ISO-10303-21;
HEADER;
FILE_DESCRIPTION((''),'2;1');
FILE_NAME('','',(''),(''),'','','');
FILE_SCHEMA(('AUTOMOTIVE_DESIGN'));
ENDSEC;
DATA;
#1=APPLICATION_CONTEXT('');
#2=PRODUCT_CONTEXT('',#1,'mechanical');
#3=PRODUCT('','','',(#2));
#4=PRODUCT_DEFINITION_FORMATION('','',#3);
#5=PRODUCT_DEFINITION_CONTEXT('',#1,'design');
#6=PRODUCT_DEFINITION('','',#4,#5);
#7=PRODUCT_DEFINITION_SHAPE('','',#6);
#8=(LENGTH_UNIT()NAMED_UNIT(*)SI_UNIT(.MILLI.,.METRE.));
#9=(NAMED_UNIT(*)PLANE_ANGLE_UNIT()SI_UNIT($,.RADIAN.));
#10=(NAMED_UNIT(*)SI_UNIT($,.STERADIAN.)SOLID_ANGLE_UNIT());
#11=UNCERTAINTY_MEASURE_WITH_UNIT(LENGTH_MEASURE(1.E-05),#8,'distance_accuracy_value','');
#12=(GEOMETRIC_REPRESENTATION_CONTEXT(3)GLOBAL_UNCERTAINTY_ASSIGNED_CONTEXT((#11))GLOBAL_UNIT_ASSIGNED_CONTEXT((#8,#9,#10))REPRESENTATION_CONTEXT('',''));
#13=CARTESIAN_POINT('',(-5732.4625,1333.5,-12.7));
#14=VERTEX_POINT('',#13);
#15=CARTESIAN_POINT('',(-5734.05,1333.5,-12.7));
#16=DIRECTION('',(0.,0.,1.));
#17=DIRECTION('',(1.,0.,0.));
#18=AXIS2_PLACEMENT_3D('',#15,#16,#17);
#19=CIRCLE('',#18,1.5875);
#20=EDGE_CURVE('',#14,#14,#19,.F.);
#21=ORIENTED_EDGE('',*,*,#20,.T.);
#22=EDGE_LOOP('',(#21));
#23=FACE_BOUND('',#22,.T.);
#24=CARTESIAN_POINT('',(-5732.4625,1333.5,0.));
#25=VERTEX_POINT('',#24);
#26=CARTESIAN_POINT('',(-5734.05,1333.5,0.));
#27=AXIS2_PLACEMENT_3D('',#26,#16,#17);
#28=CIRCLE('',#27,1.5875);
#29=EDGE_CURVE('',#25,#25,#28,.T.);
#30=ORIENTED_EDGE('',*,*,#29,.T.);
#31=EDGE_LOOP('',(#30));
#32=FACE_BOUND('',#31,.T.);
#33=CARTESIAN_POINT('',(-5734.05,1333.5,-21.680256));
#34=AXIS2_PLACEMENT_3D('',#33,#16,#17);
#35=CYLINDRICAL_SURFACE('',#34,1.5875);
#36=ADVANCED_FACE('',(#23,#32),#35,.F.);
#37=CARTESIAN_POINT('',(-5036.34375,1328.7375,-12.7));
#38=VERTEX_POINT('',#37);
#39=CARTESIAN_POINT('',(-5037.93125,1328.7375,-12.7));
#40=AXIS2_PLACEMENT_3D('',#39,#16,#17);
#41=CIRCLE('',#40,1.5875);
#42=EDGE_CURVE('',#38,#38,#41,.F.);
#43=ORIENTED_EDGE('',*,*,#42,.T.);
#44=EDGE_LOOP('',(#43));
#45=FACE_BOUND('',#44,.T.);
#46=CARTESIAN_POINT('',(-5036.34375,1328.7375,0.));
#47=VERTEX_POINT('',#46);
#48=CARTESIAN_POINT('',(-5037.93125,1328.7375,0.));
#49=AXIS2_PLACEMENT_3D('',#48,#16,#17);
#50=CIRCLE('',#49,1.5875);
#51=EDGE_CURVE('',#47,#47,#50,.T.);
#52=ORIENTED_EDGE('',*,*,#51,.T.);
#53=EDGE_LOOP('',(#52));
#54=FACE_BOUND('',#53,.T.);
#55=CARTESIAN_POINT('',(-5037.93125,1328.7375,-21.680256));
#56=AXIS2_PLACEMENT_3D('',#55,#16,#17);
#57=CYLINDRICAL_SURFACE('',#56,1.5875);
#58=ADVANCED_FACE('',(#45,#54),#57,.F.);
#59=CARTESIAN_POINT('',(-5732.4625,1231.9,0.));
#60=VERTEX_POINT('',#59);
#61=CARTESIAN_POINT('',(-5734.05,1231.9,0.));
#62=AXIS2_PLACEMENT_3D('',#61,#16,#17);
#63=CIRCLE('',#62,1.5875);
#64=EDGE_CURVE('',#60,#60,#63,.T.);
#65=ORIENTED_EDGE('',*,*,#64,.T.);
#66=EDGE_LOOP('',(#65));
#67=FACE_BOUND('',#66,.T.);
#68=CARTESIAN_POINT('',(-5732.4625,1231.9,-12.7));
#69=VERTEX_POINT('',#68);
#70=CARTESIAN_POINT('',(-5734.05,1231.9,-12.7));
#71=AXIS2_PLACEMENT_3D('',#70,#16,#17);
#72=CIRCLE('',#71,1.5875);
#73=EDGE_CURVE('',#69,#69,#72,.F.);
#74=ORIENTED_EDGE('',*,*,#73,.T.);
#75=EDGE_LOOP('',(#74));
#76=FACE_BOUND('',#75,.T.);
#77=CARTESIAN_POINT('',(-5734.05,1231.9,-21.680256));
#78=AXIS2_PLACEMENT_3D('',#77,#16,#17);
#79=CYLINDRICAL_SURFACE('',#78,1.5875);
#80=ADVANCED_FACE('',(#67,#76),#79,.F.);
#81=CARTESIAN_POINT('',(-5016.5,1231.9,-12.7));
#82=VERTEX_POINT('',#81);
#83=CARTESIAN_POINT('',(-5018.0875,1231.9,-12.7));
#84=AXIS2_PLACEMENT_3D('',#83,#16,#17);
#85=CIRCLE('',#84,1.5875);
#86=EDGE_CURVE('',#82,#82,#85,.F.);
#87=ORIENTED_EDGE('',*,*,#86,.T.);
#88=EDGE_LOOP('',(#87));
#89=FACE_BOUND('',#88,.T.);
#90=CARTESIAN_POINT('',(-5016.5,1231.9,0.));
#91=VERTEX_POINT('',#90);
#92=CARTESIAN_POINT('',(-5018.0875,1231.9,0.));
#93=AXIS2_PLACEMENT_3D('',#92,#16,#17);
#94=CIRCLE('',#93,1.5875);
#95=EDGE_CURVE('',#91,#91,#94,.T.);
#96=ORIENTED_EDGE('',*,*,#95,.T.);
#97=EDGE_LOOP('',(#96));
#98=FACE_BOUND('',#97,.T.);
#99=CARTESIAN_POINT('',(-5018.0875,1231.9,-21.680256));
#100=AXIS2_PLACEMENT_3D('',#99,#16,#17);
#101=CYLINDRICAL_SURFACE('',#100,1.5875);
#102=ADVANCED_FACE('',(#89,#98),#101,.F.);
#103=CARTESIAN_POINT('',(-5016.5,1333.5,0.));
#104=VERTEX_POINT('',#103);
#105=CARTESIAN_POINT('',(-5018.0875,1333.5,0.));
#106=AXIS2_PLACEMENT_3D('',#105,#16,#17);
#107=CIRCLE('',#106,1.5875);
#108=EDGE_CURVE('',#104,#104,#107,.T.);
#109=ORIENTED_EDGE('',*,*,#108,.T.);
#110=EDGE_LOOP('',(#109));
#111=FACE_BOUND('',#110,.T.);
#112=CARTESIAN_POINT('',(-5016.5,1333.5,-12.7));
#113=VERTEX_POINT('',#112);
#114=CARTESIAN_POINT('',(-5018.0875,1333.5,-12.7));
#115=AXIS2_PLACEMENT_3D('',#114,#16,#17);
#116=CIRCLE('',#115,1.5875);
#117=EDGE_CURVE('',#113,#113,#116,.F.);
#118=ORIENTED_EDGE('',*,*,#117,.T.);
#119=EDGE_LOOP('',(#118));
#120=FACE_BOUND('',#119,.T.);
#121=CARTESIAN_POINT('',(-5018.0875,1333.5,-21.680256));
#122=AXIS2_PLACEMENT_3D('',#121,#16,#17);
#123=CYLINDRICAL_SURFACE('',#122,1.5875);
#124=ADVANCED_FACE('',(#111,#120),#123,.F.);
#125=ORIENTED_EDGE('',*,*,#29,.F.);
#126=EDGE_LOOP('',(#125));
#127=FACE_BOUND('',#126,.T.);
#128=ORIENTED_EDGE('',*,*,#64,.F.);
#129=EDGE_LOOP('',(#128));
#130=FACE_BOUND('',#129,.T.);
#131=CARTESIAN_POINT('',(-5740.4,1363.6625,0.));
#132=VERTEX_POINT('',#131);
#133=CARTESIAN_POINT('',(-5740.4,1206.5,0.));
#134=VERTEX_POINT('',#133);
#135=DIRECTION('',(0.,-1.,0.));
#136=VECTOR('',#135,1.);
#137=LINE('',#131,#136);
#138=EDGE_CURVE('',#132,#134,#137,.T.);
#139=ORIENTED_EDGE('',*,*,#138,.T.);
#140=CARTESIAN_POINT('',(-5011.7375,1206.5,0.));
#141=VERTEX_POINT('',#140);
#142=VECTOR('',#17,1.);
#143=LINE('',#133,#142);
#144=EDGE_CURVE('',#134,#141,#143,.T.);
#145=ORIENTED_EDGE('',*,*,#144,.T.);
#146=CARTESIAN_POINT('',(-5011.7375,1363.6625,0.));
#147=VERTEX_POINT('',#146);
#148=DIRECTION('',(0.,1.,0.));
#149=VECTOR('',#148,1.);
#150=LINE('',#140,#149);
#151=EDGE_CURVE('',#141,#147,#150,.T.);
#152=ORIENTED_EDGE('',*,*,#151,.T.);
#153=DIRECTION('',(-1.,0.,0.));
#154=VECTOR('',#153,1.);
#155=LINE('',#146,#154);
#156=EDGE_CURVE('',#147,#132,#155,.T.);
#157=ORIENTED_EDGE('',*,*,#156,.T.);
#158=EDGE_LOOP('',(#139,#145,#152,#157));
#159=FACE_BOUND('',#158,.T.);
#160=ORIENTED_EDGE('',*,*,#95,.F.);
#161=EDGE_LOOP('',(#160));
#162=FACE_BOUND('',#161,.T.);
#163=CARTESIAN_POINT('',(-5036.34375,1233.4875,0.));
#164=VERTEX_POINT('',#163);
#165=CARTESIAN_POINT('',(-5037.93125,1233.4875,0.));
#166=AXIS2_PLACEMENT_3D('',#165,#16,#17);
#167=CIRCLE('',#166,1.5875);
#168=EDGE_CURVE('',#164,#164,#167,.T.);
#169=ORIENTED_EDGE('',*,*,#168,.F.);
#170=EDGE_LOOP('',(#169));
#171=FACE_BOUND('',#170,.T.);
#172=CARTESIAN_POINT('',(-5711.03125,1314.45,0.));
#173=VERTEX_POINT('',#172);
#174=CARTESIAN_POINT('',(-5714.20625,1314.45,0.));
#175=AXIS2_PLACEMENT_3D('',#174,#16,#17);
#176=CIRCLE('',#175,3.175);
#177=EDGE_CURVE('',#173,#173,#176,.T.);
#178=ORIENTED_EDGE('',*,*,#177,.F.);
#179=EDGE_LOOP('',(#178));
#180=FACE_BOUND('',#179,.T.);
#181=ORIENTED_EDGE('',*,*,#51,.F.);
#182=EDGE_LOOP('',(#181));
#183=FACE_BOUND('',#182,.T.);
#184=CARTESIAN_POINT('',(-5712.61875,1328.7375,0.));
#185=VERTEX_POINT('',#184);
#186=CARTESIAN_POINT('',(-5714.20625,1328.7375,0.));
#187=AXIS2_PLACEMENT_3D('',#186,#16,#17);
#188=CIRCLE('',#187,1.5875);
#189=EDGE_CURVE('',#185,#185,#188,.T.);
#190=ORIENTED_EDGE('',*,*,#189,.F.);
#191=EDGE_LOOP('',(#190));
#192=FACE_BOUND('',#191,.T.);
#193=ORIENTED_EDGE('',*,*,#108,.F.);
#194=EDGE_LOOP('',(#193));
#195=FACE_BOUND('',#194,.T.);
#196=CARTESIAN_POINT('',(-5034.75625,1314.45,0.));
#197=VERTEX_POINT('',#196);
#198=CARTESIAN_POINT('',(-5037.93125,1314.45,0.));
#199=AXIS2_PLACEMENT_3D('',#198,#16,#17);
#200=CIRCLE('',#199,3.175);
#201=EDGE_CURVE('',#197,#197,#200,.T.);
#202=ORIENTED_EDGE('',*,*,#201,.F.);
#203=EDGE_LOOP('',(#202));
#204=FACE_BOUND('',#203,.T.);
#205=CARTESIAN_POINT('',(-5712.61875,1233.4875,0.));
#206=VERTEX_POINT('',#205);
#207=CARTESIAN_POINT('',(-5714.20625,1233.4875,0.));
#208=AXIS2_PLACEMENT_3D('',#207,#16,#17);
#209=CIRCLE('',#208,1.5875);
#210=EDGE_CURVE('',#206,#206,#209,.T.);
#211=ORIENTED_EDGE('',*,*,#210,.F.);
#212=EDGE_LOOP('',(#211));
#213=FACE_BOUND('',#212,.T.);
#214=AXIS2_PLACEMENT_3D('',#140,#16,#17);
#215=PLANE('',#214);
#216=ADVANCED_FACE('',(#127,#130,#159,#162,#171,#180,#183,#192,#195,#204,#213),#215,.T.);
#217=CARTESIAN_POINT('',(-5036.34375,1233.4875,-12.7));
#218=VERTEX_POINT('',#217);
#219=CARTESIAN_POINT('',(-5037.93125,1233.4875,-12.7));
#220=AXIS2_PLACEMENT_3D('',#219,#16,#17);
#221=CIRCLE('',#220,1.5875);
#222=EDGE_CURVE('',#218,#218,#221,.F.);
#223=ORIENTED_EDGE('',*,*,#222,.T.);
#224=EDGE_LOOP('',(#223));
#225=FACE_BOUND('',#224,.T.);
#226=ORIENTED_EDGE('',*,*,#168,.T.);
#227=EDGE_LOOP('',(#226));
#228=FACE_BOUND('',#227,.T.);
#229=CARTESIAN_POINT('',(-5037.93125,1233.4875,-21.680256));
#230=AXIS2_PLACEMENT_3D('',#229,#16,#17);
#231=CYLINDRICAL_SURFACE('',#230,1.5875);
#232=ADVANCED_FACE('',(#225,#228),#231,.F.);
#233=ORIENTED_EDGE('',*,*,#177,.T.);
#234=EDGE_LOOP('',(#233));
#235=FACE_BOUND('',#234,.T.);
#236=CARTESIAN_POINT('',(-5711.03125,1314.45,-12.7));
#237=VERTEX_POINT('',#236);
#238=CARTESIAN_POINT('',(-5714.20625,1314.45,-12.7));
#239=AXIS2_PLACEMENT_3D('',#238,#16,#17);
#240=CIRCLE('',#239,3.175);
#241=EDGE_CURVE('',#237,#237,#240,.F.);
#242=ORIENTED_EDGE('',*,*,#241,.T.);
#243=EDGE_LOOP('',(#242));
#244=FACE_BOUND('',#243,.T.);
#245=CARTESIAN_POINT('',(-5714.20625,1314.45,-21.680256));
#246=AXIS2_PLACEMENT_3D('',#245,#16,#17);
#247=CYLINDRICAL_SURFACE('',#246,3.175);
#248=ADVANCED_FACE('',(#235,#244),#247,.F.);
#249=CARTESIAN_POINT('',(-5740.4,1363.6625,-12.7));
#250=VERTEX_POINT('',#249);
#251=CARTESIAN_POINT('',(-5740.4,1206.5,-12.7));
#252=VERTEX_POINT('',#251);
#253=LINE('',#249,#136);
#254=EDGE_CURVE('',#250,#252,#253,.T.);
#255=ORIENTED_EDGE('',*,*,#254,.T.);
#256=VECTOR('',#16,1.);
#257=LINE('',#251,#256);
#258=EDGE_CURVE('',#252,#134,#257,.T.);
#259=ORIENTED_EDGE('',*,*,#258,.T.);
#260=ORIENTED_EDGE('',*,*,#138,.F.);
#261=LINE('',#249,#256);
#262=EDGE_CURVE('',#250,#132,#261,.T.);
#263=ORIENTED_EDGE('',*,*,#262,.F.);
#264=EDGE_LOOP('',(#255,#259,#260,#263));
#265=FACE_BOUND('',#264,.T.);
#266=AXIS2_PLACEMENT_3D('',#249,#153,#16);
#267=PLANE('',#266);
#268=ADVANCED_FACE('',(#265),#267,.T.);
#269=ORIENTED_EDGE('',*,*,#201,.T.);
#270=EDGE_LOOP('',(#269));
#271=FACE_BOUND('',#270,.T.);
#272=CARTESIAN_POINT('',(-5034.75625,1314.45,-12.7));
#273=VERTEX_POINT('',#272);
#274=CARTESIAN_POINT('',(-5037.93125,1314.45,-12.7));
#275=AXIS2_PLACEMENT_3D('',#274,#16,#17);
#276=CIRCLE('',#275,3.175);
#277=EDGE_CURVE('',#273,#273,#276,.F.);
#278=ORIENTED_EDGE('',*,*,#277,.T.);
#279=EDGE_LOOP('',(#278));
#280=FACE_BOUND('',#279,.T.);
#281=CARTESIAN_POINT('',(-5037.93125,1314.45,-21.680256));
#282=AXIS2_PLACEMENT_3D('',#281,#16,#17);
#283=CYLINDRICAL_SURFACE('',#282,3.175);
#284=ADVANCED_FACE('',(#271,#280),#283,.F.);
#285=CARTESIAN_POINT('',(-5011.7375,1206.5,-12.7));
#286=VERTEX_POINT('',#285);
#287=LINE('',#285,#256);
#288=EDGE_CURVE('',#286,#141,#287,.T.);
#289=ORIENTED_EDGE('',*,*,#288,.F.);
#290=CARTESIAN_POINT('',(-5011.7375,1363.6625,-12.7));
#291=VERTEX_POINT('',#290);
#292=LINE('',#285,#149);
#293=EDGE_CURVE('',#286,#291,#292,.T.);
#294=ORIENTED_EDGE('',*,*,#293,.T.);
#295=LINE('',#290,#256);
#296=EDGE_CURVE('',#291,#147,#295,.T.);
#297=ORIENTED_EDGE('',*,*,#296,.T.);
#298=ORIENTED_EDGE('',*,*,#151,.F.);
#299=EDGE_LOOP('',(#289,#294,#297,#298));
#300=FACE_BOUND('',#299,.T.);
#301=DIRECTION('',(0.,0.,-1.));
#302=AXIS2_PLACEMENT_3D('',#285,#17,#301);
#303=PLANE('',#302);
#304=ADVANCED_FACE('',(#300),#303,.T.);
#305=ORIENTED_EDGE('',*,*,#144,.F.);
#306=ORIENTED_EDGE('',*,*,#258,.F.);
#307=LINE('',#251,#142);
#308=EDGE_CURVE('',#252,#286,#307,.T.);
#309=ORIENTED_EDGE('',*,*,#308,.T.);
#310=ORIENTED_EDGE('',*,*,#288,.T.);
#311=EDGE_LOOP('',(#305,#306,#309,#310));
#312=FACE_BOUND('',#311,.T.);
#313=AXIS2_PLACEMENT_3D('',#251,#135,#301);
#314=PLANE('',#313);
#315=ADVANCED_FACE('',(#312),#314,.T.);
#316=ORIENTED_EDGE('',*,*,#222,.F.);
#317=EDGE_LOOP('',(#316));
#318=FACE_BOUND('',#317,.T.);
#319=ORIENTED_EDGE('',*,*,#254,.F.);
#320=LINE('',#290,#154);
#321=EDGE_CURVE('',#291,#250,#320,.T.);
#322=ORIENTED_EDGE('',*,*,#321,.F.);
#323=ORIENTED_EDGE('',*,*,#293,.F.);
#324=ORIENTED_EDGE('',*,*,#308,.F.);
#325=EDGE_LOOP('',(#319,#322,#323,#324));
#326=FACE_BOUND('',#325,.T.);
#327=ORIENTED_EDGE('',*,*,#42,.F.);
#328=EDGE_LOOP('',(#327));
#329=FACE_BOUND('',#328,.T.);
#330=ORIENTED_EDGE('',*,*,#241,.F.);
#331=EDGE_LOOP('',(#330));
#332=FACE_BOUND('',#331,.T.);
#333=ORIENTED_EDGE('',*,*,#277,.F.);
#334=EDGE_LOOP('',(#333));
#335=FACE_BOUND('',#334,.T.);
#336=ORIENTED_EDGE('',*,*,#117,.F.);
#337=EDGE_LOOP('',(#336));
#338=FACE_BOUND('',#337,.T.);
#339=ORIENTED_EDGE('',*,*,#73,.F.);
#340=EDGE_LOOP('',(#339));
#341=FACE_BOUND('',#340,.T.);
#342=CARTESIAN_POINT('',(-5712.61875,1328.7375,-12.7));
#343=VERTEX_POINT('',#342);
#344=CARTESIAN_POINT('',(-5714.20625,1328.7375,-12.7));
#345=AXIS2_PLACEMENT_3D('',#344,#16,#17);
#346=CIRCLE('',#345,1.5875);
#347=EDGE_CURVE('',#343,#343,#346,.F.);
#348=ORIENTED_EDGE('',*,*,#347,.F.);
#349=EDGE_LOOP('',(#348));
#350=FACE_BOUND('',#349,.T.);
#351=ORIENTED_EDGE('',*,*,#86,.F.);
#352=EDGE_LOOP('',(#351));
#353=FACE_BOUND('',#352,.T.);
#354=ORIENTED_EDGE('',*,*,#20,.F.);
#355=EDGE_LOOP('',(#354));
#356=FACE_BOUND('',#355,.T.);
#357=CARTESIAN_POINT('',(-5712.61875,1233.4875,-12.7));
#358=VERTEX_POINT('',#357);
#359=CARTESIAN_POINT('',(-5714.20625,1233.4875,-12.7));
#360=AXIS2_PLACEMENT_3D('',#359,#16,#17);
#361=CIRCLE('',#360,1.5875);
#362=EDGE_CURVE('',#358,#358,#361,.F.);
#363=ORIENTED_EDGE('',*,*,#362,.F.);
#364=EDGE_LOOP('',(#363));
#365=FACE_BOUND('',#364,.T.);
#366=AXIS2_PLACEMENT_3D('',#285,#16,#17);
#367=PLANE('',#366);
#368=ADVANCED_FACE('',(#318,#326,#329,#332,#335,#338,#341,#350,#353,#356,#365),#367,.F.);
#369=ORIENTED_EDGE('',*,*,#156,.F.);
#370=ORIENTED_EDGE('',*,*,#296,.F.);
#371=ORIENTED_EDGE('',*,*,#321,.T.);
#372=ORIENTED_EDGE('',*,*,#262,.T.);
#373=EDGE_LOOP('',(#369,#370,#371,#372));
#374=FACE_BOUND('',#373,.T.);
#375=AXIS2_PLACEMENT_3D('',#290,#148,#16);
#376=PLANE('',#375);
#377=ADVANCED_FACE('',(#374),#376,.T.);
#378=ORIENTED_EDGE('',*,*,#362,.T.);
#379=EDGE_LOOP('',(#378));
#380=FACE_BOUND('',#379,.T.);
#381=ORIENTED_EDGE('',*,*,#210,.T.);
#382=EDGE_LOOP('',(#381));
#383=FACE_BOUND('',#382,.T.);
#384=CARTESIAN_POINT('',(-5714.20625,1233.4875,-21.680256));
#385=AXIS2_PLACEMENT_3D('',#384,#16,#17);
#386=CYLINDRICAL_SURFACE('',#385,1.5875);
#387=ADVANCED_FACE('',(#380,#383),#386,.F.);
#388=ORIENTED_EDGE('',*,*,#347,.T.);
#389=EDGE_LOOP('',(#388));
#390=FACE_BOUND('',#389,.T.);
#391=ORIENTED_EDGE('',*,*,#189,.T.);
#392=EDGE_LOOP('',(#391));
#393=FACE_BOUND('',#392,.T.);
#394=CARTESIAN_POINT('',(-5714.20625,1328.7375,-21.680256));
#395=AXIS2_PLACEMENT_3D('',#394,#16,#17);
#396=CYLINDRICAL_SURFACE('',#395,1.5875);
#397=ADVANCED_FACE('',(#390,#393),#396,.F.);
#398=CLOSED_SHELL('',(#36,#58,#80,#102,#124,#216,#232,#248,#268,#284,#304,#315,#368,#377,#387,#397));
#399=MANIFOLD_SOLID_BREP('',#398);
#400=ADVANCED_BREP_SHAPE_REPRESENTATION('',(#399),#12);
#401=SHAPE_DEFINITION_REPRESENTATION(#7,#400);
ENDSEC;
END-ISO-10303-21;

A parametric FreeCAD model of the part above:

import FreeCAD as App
import Part
import Sketcher
from FreeCAD import Vector
Q = App.Units.Quantity

doc = App.newDocument("Part")
body = doc.addObject("PartDesign::Body", "Body")

# Sketch on XY plane
sketch1 = body.newObject("Sketcher::SketchObject", "Sketch")
sketch1.AttachmentSupport = (doc.getObject("XY_Plane"), [""])
sketch1.MapMode = "FlatFace"
sketch1.addGeometry([
    Part.LineSegment(Vector(-5740, 1364, 0), Vector(-5740, 1206, 0)),
    Part.LineSegment(Vector(-5740, 1206, 0), Vector(-5012, 1206, 0)),
    Part.LineSegment(Vector(-5012, 1206, 0), Vector(-5012, 1364, 0)),
    Part.LineSegment(Vector(-5012, 1364, 0), Vector(-5740, 1364, 0)),
], False)
sketch1.addConstraint([
    Sketcher.Constraint("Coincident", 0, 2, 1, 1),
    Sketcher.Constraint("Coincident", 1, 2, 2, 1),
    Sketcher.Constraint("Coincident", 2, 2, 3, 1),
    Sketcher.Constraint("Coincident", 3, 2, 0, 1),
    Sketcher.Constraint("Vertical", 0),
    Sketcher.Constraint("Horizontal", 1),
    Sketcher.Constraint("Vertical", 2),
    Sketcher.Constraint("Horizontal", 3),
    Sketcher.Constraint("DistanceX", 0, 2, -1, 1, Q("226 in")),
    Sketcher.Constraint("DistanceY", -1, 1, 0, 2, Q("47.5 in")),
    Sketcher.Constraint("DistanceX", 1, 1, 1, 2, Q("28.6875 in")),
    Sketcher.Constraint("DistanceY", 0, 2, 0, 1, Q("6.1875 in")),
])
pad1 = body.newObject("PartDesign::Pad", "Pad")
pad1.Profile = sketch1
pad1.Length = Q("0.5 in")
pad1.Reversed = True

# Sketch on XY plane
sketch2 = body.newObject("Sketcher::SketchObject", "Sketch001")
sketch2.AttachmentSupport = (doc.getObject("XY_Plane"), [""])
sketch2.MapMode = "FlatFace"
sketch2.addGeometry([
    Part.Circle(Vector(-5714.2, 1314.5, 0), Vector(0, 0, 1), 3.2),  # 0
    Part.Circle(Vector(-5714.2, 1328.7, 0), Vector(0, 0, 1), 1.6),  # 1
    Part.Circle(Vector(-5734.1, 1333.5, 0), Vector(0, 0, 1), 1.6),  # 2
    Part.Circle(Vector(-5734.1, 1231.9, 0), Vector(0, 0, 1), 1.6),  # 3
    Part.Circle(Vector(-5714.2, 1233.5, 0), Vector(0, 0, 1), 1.6),  # 4
    Part.Circle(Vector(-5037.9, 1314.5, 0), Vector(0, 0, 1), 3.2),  # 5
    Part.Circle(Vector(-5037.9, 1328.7, 0), Vector(0, 0, 1), 1.6),  # 6
    Part.Circle(Vector(-5018.1, 1333.5, 0), Vector(0, 0, 1), 1.6),  # 7
    Part.Circle(Vector(-5037.9, 1233.5, 0), Vector(0, 0, 1), 1.6),  # 8
    Part.Circle(Vector(-5018.1, 1231.9, 0), Vector(0, 0, 1), 1.6),  # 9
], False)
sketch2.addConstraint([
    Sketcher.Constraint("Equal", 1, 2),
    Sketcher.Constraint("Equal", 2, 3),
    Sketcher.Constraint("Equal", 3, 4),
    Sketcher.Constraint("Equal", 0, 5),
    Sketcher.Constraint("Equal", 4, 6),
    Sketcher.Constraint("Equal", 6, 7),
    Sketcher.Constraint("Equal", 7, 8),
    Sketcher.Constraint("Equal", 8, 9),
    Sketcher.Constraint("Horizontal", 0, 3, 5, 3),
    Sketcher.Constraint("Horizontal", 1, 3, 6, 3),
    Sketcher.Constraint("Horizontal", 2, 3, 7, 3),
    Sketcher.Constraint("Horizontal", 4, 3, 8, 3),
    Sketcher.Constraint("Horizontal", 3, 3, 9, 3),
    Sketcher.Constraint("Vertical", 0, 3, 1, 3),
    Sketcher.Constraint("Vertical", 2, 3, 3, 3),
    Sketcher.Constraint("Vertical", 1, 3, 4, 3),
    Sketcher.Constraint("Vertical", 5, 3, 6, 3),
    Sketcher.Constraint("Vertical", 6, 3, 8, 3),
    Sketcher.Constraint("Vertical", 7, 3, 9, 3),
    Sketcher.Constraint("Diameter", 0, Q("0.25 in")),
    Sketcher.Constraint("Diameter", 1, Q("0.125 in")),
    Sketcher.Constraint("DistanceY", 3, 3, 2, 3, Q("4 in")),
    Sketcher.Constraint("DistanceY", -1, 1, 2, 3, Q("52.5 in")),
    Sketcher.Constraint("DistanceY", -1, 1, 0, 3, Q("51.75 in")),
    Sketcher.Constraint("DistanceX", 2, 3, -1, 1, Q("225.75 in")),
    Sketcher.Constraint("DistanceY", 4, 3, 1, 3, Q("3.75 in")),
    Sketcher.Constraint("DistanceX", 0, 3, -1, 1, Q("224.96875 in")),
    Sketcher.Constraint("DistanceY", -1, 1, 1, 3, Q("52.3125 in")),
    Sketcher.Constraint("DistanceX", 5, 3, -1, 1, Q("198.34375 in")),
    Sketcher.Constraint("DistanceX", 7, 3, -1, 1, Q("197.5625 in")),
])
pocket1 = body.newObject("PartDesign::Pocket", "Pocket")
pocket1.Profile = sketch2
pocket1.Length = Q("0.5 in")

doc.recompute()
